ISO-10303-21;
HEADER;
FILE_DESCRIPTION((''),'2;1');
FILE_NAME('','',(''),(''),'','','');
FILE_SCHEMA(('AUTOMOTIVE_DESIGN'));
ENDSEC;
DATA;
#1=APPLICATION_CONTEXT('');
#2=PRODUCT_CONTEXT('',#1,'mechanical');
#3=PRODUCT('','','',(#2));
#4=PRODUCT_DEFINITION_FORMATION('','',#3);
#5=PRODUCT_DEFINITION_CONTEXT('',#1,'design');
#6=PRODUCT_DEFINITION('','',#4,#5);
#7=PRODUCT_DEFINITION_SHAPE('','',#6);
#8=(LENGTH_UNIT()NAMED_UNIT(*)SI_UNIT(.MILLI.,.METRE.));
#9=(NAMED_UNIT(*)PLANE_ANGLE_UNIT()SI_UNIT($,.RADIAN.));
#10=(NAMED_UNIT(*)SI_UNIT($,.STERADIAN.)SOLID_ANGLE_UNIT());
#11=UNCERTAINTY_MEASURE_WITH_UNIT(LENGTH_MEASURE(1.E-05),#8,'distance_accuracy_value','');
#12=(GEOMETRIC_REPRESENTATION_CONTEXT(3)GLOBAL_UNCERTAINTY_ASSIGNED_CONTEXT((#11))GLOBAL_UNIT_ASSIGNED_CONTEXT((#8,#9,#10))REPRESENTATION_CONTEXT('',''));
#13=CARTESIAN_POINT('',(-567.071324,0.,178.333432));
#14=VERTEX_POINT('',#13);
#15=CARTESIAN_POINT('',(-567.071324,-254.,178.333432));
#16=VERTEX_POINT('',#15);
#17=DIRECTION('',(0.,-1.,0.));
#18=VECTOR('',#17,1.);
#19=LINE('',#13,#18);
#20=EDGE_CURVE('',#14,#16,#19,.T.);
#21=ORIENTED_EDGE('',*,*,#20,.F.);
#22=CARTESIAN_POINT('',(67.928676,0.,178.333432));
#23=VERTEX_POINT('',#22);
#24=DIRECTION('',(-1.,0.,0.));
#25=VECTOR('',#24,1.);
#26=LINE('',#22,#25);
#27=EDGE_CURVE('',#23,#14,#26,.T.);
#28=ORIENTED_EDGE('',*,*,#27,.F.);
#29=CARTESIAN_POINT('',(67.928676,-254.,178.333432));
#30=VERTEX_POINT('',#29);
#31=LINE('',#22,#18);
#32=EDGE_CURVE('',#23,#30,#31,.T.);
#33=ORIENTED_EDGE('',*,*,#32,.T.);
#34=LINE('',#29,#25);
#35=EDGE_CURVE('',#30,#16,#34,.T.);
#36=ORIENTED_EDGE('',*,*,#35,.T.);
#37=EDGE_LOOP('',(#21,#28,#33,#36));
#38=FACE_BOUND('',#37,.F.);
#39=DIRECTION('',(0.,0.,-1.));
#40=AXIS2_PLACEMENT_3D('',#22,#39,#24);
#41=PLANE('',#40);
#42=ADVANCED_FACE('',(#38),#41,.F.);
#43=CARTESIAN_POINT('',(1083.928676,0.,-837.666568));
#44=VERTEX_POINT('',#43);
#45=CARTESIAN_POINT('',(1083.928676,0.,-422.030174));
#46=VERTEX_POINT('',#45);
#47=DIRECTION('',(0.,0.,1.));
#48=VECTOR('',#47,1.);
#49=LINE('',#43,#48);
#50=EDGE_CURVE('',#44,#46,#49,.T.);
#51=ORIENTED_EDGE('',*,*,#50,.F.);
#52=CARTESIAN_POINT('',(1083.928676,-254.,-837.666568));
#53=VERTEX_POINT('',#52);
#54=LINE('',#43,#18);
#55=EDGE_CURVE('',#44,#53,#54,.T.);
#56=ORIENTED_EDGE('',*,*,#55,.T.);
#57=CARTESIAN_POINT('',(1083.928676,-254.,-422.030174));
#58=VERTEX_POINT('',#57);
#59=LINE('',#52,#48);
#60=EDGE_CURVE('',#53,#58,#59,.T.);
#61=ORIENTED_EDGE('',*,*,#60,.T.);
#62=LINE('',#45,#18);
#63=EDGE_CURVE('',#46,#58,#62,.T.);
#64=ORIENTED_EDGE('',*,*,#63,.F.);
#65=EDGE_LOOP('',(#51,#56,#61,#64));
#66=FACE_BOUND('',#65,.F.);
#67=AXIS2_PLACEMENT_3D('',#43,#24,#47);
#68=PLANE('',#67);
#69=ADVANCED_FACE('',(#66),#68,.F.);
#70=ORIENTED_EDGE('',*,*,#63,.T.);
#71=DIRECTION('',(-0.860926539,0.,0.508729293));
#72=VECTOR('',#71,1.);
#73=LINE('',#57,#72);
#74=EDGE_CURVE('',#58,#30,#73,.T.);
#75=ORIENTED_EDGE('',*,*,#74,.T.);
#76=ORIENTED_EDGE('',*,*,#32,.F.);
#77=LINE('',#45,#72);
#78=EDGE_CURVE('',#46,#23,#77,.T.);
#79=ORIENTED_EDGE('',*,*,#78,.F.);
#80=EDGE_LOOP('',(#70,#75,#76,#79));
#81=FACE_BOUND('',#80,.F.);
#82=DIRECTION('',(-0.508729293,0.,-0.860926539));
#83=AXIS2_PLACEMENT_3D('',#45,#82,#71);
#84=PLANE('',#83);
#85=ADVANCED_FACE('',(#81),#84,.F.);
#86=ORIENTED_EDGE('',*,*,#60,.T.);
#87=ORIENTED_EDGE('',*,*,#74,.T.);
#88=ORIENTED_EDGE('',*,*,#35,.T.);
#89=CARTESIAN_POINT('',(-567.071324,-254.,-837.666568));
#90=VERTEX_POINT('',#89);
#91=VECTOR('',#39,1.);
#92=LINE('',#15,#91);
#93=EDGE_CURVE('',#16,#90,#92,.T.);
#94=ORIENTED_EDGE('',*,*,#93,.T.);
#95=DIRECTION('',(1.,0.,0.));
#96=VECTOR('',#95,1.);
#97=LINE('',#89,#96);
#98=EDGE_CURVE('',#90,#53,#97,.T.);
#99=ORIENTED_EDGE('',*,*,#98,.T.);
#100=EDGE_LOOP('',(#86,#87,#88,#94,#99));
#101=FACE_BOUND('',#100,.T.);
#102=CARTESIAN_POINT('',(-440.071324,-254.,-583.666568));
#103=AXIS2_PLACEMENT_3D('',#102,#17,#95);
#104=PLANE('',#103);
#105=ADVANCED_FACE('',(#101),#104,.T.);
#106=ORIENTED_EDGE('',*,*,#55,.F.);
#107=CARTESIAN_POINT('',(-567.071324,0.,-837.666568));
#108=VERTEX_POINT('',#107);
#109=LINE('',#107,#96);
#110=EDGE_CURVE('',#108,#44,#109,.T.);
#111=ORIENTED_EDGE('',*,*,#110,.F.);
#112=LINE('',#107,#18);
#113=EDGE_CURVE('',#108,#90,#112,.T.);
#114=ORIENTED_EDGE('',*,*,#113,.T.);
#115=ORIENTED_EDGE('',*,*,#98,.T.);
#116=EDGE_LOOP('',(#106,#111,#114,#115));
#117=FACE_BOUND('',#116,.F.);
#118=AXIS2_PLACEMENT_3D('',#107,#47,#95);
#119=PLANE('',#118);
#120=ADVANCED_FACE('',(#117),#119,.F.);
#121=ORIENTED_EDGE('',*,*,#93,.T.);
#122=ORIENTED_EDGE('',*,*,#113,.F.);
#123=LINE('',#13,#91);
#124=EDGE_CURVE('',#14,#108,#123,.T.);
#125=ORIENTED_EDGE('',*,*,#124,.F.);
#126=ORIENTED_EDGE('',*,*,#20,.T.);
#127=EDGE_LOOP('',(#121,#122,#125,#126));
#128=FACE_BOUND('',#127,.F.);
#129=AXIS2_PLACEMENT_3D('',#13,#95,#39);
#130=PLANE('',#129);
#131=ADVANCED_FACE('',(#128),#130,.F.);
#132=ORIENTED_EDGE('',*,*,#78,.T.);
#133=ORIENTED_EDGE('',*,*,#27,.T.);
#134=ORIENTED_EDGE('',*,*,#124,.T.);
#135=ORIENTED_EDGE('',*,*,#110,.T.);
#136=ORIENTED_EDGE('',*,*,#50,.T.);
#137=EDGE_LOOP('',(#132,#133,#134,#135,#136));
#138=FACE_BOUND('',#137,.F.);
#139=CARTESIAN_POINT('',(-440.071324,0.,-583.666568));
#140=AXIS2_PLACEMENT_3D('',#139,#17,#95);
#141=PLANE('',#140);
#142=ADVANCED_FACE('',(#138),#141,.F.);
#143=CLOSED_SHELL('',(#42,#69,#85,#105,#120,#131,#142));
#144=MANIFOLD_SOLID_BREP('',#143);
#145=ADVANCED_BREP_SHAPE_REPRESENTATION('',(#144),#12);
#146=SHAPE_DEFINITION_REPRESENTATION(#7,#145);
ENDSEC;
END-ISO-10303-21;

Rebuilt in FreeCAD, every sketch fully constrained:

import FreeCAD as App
import Part
import Sketcher
Q = App.Units.Quantity

doc = App.newDocument("Part")
body = doc.addObject("PartDesign::Body", "Body")

sketch1 = doc.addObject("Sketcher::SketchObject", "Sketch")
body.addObject(sketch1)
sketch1.AttachmentSupport = (doc.XZ_Plane, [""])
sketch1.MapMode = "FlatFace"
sketch1.addGeometry([
    Part.LineSegment(App.Vector(-567, -838, 0), App.Vector(1084, -838, 0)),
    Part.LineSegment(App.Vector(1084, -838, 0), App.Vector(1084, -422, 0)),
    Part.LineSegment(App.Vector(1084, -422, 0), App.Vector(68, 178, 0)),
    Part.LineSegment(App.Vector(68, 178, 0), App.Vector(-567, 178, 0)),
    Part.LineSegment(App.Vector(-567, 178, 0), App.Vector(-567, -838, 0)),
], False)
sketch1.addConstraint([
    Sketcher.Constraint("Coincident", 0, 2, 1, 1),
    Sketcher.Constraint("Coincident", 1, 2, 2, 1),
    Sketcher.Constraint("Coincident", 2, 2, 3, 1),
    Sketcher.Constraint("Coincident", 3, 2, 4, 1),
    Sketcher.Constraint("Coincident", 4, 2, 0, 1),
    Sketcher.Constraint("Horizontal", 0),
    Sketcher.Constraint("Vertical", 1),
    Sketcher.Constraint("Horizontal", 3),
    Sketcher.Constraint("Vertical", 4),
    Sketcher.Constraint("DistanceX", 0, 1, 0, 2, Q("65 in")),
    Sketcher.Constraint("DistanceX", 3, 2, 3, 1, Q("25 in")),
    Sketcher.Constraint("DistanceY", 4, 2, 4, 1, Q("40 in")),
    Sketcher.Constraint("DistanceY", 1, 1, 1, 2, Q("415.636394 mm")),
    Sketcher.Constraint("DistanceY", 0, 2, -1, 1, Q("837.666568 mm")),
    Sketcher.Constraint("DistanceX", -1, 1, 0, 2, Q("1083.928676 mm")),
])
pad1 = doc.addObject("PartDesign::Pad", "Pad")
body.addObject(pad1)
pad1.Profile = sketch1
pad1.Length = Q("10 in")

doc.recompute()
